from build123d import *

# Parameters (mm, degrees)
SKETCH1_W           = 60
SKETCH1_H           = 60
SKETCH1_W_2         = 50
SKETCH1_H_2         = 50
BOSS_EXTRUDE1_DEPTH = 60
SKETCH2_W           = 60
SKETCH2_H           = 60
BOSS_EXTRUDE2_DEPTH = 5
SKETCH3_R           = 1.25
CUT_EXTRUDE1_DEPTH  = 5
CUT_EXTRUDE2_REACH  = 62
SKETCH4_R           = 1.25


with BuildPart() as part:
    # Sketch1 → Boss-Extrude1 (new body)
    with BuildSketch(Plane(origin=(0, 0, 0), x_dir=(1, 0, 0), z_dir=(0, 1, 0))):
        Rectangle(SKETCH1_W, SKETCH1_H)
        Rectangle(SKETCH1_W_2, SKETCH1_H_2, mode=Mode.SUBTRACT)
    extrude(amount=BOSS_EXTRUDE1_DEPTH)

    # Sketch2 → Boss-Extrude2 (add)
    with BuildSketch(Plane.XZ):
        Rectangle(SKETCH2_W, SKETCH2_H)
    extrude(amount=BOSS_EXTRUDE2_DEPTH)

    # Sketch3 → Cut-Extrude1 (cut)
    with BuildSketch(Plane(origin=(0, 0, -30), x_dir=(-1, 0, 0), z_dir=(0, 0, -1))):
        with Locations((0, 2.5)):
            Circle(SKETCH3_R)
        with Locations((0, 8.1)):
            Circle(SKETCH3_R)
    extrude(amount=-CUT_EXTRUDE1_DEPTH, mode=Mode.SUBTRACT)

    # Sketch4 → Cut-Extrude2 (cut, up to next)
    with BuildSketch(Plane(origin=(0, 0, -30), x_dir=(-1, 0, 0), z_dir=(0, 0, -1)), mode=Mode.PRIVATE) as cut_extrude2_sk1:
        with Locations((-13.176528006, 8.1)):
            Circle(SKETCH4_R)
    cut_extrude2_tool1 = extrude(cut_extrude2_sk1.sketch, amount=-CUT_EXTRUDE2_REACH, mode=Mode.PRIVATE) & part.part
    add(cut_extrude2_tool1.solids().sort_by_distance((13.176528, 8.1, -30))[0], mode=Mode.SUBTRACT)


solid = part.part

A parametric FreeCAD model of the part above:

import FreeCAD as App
import Part
import Sketcher

doc = App.newDocument("Part")
body = doc.addObject("PartDesign::Body", "Body")

# Sketch on XZ plane
sketch1 = body.newObject("Sketcher::SketchObject", "Sketch")
sketch1.AttachmentSupport = (doc.getObject("XZ_Plane"), [""])
sketch1.MapMode = "FlatFace"
sketch1.addGeometry([
    Part.LineSegment(App.Vector(-30, -30, 0), App.Vector(-30, 30, 0)),  # 0
    Part.LineSegment(App.Vector(-30, 30, 0), App.Vector(30, 30, 0)),  # 1
    Part.LineSegment(App.Vector(30, 30, 0), App.Vector(30, -30, 0)),  # 2
    Part.LineSegment(App.Vector(30, -30, 0), App.Vector(-30, -30, 0)),  # 3
    Part.LineSegment(App.Vector(25, 25, 0), App.Vector(-25, 25, 0)),  # 4
    Part.LineSegment(App.Vector(-25, 25, 0), App.Vector(-25, -25, 0)),  # 5
    Part.LineSegment(App.Vector(-25, -25, 0), App.Vector(25, -25, 0)),  # 6
    Part.LineSegment(App.Vector(25, -25, 0), App.Vector(25, 25, 0)),  # 7
], False)
sketch1.addConstraint([
    Sketcher.Constraint("Coincident", 0, 2, 1, 1),
    Sketcher.Constraint("Coincident", 1, 2, 2, 1),
    Sketcher.Constraint("Coincident", 2, 2, 3, 1),
    Sketcher.Constraint("Coincident", 3, 2, 0, 1),
    Sketcher.Constraint("Coincident", 4, 2, 5, 1),
    Sketcher.Constraint("Coincident", 5, 2, 6, 1),
    Sketcher.Constraint("Coincident", 6, 2, 7, 1),
    Sketcher.Constraint("Coincident", 7, 2, 4, 1),
    Sketcher.Constraint("Vertical", 0),
    Sketcher.Constraint("Horizontal", 1),
    Sketcher.Constraint("Vertical", 2),
    Sketcher.Constraint("Horizontal", 3),
    Sketcher.Constraint("Horizontal", 4),
    Sketcher.Constraint("Vertical", 5),
    Sketcher.Constraint("Horizontal", 6),
    Sketcher.Constraint("Vertical", 7),
    Sketcher.Constraint("Symmetric", 0, 2, 2, 2, -1, 1),
    Sketcher.Constraint("Symmetric", 4, 2, 6, 2, -1, 1),
    Sketcher.Constraint("Equal", 3, 0),
    Sketcher.Constraint("Equal", 6, 5),
    Sketcher.Constraint("DistanceX", 1, 1, 1, 2, 60.0),
    Sketcher.Constraint("DistanceX", 4, 2, 4, 1, 50.0),
])
pad1 = body.newObject("PartDesign::Pad", "Pad")
pad1.Profile = sketch1
pad1.Length = 60
pad1.Reversed = True

# Sketch on XZ plane
sketch2 = body.newObject("Sketcher::SketchObject", "Sketch001")
sketch2.AttachmentSupport = (doc.getObject("XZ_Plane"), [""])
sketch2.MapMode = "FlatFace"
sketch2.addGeometry([
    Part.LineSegment(App.Vector(-30, 30, 0), App.Vector(-30, -30, 0)),
    Part.LineSegment(App.Vector(-30, -30, 0), App.Vector(30, -30, 0)),
    Part.LineSegment(App.Vector(30, -30, 0), App.Vector(30, 30, 0)),
    Part.LineSegment(App.Vector(30, 30, 0), App.Vector(-30, 30, 0)),
], False)
sketch2.addConstraint([
    Sketcher.Constraint("Coincident", 0, 2, 1, 1),
    Sketcher.Constraint("Coincident", 1, 2, 2, 1),
    Sketcher.Constraint("Coincident", 2, 2, 3, 1),
    Sketcher.Constraint("Coincident", 3, 2, 0, 1),
    Sketcher.Constraint("Vertical", 0),
    Sketcher.Constraint("Horizontal", 1),
    Sketcher.Constraint("Vertical", 2),
    Sketcher.Constraint("Horizontal", 3),
    Sketcher.Constraint("Symmetric", 0, 2, 2, 2, -1, 1),
    Sketcher.Constraint("Equal", 3, 0),
    Sketcher.Constraint("DistanceX", 1, 1, 1, 2, 60.0),
])
pad2 = body.newObject("PartDesign::Pad", "Pad001")
pad2.Profile = sketch2
pad2.Length = 5

# Sketch on XY plane
sketch3 = body.newObject("Sketcher::SketchObject", "Sketch002")
sketch3.AttachmentSupport = (doc.getObject("XY_Plane"), [""])
sketch3.MapMode = "FlatFace"
sketch3.AttachmentOffset = App.Placement(App.Vector(0, 0, -30), App.Rotation())
sketch3.addGeometry([
    Part.Circle(App.Vector(0, 2.5, 0), App.Vector(0, 0, 1), 1.2),
    Part.Circle(App.Vector(0, 8.1, 0), App.Vector(0, 0, 1), 1.2),
], False)
sketch3.addConstraint([
    Sketcher.Constraint("Equal", 0, 1),
    Sketcher.Constraint("PointOnObject", 0, 3, -2),
    Sketcher.Constraint("PointOnObject", 1, 3, -2),
    Sketcher.Constraint("Diameter", 0, 2.5),
    Sketcher.Constraint("DistanceY", -1, 1, 0, 3, 2.5),
    Sketcher.Constraint("DistanceY", -1, 1, 1, 3, 8.1),
])
pocket1 = body.newObject("PartDesign::Pocket", "Pocket")
pocket1.Profile = sketch3
pocket1.Length = 5
pocket1.Reversed = True

# Sketch on XY plane
sketch4 = body.newObject("Sketcher::SketchObject", "Sketch003")
sketch4.AttachmentSupport = (doc.getObject("XY_Plane"), [""])
sketch4.MapMode = "FlatFace"
sketch4.AttachmentOffset = App.Placement(App.Vector(0, 0, -30), App.Rotation())
sketch4.addGeometry(Part.Circle(App.Vector(13.2, 8.1, 0), App.Vector(0, 0, 1), 1.2), False)
sketch4.addConstraint([
    Sketcher.Constraint("Diameter", 0, 2.5),
    Sketcher.Constraint("DistanceY", -1, 1, 0, 3, 8.1),
    Sketcher.Constraint("DistanceX", -1, 1, 0, 3, 13.176528),
])
pocket2 = body.newObject("PartDesign::Pocket", "Pocket001")
pocket2.Profile = sketch4
pocket2.Type = "UpToFirst"
pocket2.Reversed = True

doc.recompute()
